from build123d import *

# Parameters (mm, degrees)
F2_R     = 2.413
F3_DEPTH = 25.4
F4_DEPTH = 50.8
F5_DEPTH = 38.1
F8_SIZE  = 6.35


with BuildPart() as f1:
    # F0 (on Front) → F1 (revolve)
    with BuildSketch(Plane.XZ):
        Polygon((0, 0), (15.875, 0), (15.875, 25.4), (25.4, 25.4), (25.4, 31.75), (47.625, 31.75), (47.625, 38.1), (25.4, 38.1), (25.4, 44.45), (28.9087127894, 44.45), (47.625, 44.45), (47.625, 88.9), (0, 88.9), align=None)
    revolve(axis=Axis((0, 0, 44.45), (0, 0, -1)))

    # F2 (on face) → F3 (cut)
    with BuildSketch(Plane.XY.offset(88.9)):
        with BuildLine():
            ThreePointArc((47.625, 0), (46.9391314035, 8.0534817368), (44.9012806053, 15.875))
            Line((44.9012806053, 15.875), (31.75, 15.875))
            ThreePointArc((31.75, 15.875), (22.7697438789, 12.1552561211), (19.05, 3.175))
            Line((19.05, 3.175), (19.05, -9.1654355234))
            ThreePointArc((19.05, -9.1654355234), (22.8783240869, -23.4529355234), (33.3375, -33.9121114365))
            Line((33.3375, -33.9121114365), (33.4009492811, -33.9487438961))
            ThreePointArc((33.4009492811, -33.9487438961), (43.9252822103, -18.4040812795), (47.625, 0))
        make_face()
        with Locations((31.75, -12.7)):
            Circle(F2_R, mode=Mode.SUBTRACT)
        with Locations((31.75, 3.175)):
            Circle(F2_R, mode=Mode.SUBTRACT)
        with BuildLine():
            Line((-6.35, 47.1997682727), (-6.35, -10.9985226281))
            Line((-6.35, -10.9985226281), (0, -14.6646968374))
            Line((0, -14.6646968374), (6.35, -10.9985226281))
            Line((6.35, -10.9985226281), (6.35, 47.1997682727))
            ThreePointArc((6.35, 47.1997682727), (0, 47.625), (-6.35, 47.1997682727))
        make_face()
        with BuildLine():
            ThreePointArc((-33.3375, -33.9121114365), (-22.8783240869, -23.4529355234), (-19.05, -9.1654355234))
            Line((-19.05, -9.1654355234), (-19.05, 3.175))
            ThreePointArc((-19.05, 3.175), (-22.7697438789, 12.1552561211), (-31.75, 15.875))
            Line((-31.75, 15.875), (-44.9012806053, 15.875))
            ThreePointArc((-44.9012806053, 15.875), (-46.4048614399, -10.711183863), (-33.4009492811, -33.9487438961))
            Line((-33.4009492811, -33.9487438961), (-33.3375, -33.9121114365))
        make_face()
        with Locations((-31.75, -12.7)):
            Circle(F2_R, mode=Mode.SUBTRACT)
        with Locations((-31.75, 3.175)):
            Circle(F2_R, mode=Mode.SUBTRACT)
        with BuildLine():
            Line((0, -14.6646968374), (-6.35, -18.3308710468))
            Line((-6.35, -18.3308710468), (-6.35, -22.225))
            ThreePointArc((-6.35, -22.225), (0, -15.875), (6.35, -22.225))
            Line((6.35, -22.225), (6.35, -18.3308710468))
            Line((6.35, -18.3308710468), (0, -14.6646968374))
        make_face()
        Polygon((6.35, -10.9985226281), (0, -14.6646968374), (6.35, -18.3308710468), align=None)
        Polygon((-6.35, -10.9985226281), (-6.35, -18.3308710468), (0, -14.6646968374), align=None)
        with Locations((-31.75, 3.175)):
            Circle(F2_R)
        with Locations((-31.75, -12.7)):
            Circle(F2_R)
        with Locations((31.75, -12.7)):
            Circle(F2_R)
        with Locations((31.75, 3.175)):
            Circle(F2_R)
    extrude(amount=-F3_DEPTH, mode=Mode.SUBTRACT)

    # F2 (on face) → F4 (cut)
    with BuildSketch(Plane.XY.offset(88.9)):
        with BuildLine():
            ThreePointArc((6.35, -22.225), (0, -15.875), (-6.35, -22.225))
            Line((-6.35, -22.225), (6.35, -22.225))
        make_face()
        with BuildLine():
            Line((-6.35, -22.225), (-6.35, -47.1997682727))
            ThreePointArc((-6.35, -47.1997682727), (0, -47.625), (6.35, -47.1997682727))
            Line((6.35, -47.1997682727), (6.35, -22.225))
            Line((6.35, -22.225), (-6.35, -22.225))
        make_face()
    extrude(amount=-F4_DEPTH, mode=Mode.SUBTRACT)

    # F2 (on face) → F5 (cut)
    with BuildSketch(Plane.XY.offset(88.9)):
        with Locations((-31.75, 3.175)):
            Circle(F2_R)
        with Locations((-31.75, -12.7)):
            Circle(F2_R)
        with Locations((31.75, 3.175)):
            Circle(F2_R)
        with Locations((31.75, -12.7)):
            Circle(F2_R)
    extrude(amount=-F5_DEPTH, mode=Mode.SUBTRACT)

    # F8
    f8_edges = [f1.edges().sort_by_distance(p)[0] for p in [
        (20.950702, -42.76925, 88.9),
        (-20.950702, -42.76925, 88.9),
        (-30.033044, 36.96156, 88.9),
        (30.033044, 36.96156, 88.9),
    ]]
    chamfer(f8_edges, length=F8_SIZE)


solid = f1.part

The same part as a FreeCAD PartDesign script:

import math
import FreeCAD as App
import Part
import Sketcher

V = App.Vector
Q = App.Units.Quantity


def edges_at(feature, points):
    """Names of the edges that pass closest to the given points."""
    edges = feature.Shape.Edges
    near = lambda p: min(range(len(edges)), key=lambda i: edges[i].distToShape(Part.Vertex(*p))[0])
    return sorted({f"Edge{near(p) + 1}" for p in points})

doc = App.newDocument("Part")
body = doc.addObject("PartDesign::Body", "Body")

sketch1 = body.newObject("Sketcher::SketchObject", "Sketch")
sketch1.AttachmentSupport = (doc.getObject("XZ_Plane"), [""])
sketch1.MapMode = "FlatFace"
sketch1.addGeometry(Part.LineSegment(V(0, 0, 0), V(15.875, 0, 0)), False)
sketch1.addGeometry(Part.LineSegment(V(15.875, 0, 0), V(15.875, 25.4, 0)), False)
sketch1.addGeometry(Part.LineSegment(V(15.875, 25.4, 0), V(25.4, 25.4, 0)), False)
sketch1.addGeometry(Part.LineSegment(V(25.4, 25.4, 0), V(25.4, 31.75, 0)), False)
sketch1.addGeometry(Part.LineSegment(V(25.4, 31.75, 0), V(47.625, 31.75, 0)), False)
sketch1.addGeometry(Part.LineSegment(V(47.625, 31.75, 0), V(47.625, 38.1, 0)), False)
sketch1.addGeometry(Part.LineSegment(V(47.625, 38.1, 0), V(25.4, 38.1, 0)), False)
sketch1.addGeometry(Part.LineSegment(V(25.4, 38.1, 0), V(25.4, 44.45, 0)), False)
sketch1.addGeometry(Part.LineSegment(V(25.4, 44.45, 0), V(47.625, 44.45, 0)), False)
sketch1.addGeometry(Part.LineSegment(V(47.625, 44.45, 0), V(47.625, 88.9, 0)), False)
sketch1.addGeometry(Part.LineSegment(V(47.625, 88.9, 0), V(0, 88.9, 0)), False)
sketch1.addGeometry(Part.LineSegment(V(0, 88.9, 0), V(0, 0, 0)), False)
sketch1.addConstraint(Sketcher.Constraint("Coincident", 0, 2, 1, 1))
sketch1.addConstraint(Sketcher.Constraint("Coincident", 1, 2, 2, 1))
sketch1.addConstraint(Sketcher.Constraint("Coincident", 2, 2, 3, 1))
sketch1.addConstraint(Sketcher.Constraint("Coincident", 3, 2, 4, 1))
sketch1.addConstraint(Sketcher.Constraint("Coincident", 4, 2, 5, 1))
sketch1.addConstraint(Sketcher.Constraint("Coincident", 5, 2, 6, 1))
sketch1.addConstraint(Sketcher.Constraint("Coincident", 6, 2, 7, 1))
sketch1.addConstraint(Sketcher.Constraint("Coincident", 7, 2, 8, 1))
sketch1.addConstraint(Sketcher.Constraint("Coincident", 8, 2, 9, 1))
sketch1.addConstraint(Sketcher.Constraint("Coincident", 9, 2, 10, 1))
sketch1.addConstraint(Sketcher.Constraint("Coincident", 10, 2, 11, 1))
sketch1.addConstraint(Sketcher.Constraint("Coincident", 11, 2, 0, 1))
sketch1.addConstraint(Sketcher.Constraint("Horizontal", 0))
sketch1.addConstraint(Sketcher.Constraint("Vertical", 1))
sketch1.addConstraint(Sketcher.Constraint("Horizontal", 2))
sketch1.addConstraint(Sketcher.Constraint("Vertical", 3))
sketch1.addConstraint(Sketcher.Constraint("Horizontal", 4))
sketch1.addConstraint(Sketcher.Constraint("Vertical", 5))
sketch1.addConstraint(Sketcher.Constraint("Horizontal", 6))
sketch1.addConstraint(Sketcher.Constraint("Vertical", 7))
sketch1.addConstraint(Sketcher.Constraint("Horizontal", 8))
sketch1.addConstraint(Sketcher.Constraint("Vertical", 9))
sketch1.addConstraint(Sketcher.Constraint("Horizontal", 10))
sketch1.addConstraint(Sketcher.Constraint("Vertical", 11))
sketch1.addConstraint(Sketcher.Constraint("Coincident", 11, 2, -1, 1))
sketch1.addConstraint(Sketcher.Constraint("Vertical", 3, 2, 6, 2))
sketch1.addConstraint(Sketcher.Constraint("Vertical", 5, 2, 8, 2))
sketch1.addConstraint(Sketcher.Constraint("Equal", 3, 5))
sketch1.addConstraint(Sketcher.Constraint("Equal", 5, 7))
sketch1.addConstraint(Sketcher.Constraint("DistanceY", 1, 1, 1, 2, Q("1 in")))
sketch1.addConstraint(Sketcher.Constraint("DistanceY", 11, 2, 11, 1, Q("3.5 in")))
sketch1.addConstraint(Sketcher.Constraint("DistanceX", -1, 1, 2, 2, Q("1 in")))
sketch1.addConstraint(Sketcher.Constraint("DistanceY", 5, 2, 9, 2, Q("2 in")))
sketch1.addConstraint(Sketcher.Constraint("DistanceX", 0, 1, 0, 2, Q("0.625 in")))
sketch1.addConstraint(Sketcher.Constraint("DistanceX", 4, 1, 4, 2, Q("0.875 in")))
revolution = body.newObject("PartDesign::Revolution", "Revolution")
revolution.Profile = sketch1
revolution.ReferenceAxis = (sketch1, ["V_Axis"])
revolution.Angle = 360

sketch2 = body.newObject("Sketcher::SketchObject", "Sketch001")
sketch2.AttachmentSupport = (doc.getObject("XY_Plane"), [""])
sketch2.MapMode = "FlatFace"
sketch2.AttachmentOffset = App.Placement(V(0, 0, 3.5 * 25.4), App.Rotation())
sketch2.addGeometry(Part.ArcOfCircle(Part.Circle(V(0, 0, 0), V(0, 0, 1), 47.625), math.radians(0), math.radians(19.471221)), False)
sketch2.addGeometry(Part.LineSegment(V(44.901281, 15.875, 0), V(31.75, 15.875, 0)), False)
sketch2.addGeometry(Part.ArcOfCircle(Part.Circle(V(31.75, 3.175, 0), V(0, 0, 1), 12.7), math.radians(90), math.radians(180)), False)
sketch2.addGeometry(Part.LineSegment(V(19.05, 3.175, 0), V(19.05, -9.165436, 0)), False)
sketch2.addGeometry(Part.ArcOfCircle(Part.Circle(V(47.625, -9.165436, 0), V(0, 0, 1), 28.575), math.radians(180), math.radians(240)), False)
sketch2.addGeometry(Part.LineSegment(V(33.3375, -33.912111, 0), V(33.400949, -33.948744, 0)), False)
sketch2.addGeometry(Part.ArcOfCircle(Part.Circle(V(0, 0, 0), V(0, 0, 1), 47.625), math.radians(-45.46601), math.radians(0)), False)
sketch2.addGeometry(Part.LineSegment(V(-6.35, 47.199768, 0), V(-6.35, -22.225, 0)), False)
sketch2.addGeometry(Part.ArcOfCircle(Part.Circle(V(0, -22.225, 0), V(0, 0, 1), 6.35), math.radians(0), math.radians(180)), False)
sketch2.addGeometry(Part.LineSegment(V(6.35, -22.225, 0), V(6.35, 47.199768, 0)), False)
sketch2.addGeometry(Part.ArcOfCircle(Part.Circle(V(0, 0, 0), V(0, 0, 1), 47.625), math.radians(82.337744), math.radians(97.662256)), False)
sketch2.addGeometry(Part.ArcOfCircle(Part.Circle(V(-47.625, -9.165436, 0), V(0, 0, 1), 28.575), math.radians(-60), math.radians(0)), False)
sketch2.addGeometry(Part.LineSegment(V(-19.05, -9.165436, 0), V(-19.05, 3.175, 0)), False)
sketch2.addGeometry(Part.ArcOfCircle(Part.Circle(V(-31.75, 3.175, 0), V(0, 0, 1), 12.7), math.radians(0), math.radians(90)), False)
sketch2.addGeometry(Part.LineSegment(V(-31.75, 15.875, 0), V(-44.901281, 15.875, 0)), False)
sketch2.addGeometry(Part.ArcOfCircle(Part.Circle(V(0, 0, 0), V(0, 0, 1), 47.625), math.radians(160.528779), math.radians(225.46601)), False)
sketch2.addGeometry(Part.LineSegment(V(-33.400949, -33.948744, 0), V(-33.3375, -33.912111, 0)), False)
sketch2.addConstraint(Sketcher.Constraint("Coincident", 0, 2, 1, 1))
sketch2.addConstraint(Sketcher.Constraint("Tangent", 1, 2, 2, 1))
sketch2.addConstraint(Sketcher.Constraint("Tangent", 2, 2, 3, 1))
sketch2.addConstraint(Sketcher.Constraint("Tangent", 3, 2, 4, 1))
sketch2.addConstraint(Sketcher.Constraint("Tangent", 4, 2, 5, 1))
sketch2.addConstraint(Sketcher.Constraint("Coincident", 5, 2, 6, 1))
sketch2.addConstraint(Sketcher.Constraint("Tangent", 6, 2, 0, 1))
sketch2.addConstraint(Sketcher.Constraint("Tangent", 7, 2, 8, 2))
sketch2.addConstraint(Sketcher.Constraint("Tangent", 8, 1, 9, 1))
sketch2.addConstraint(Sketcher.Constraint("Coincident", 9, 2, 10, 1))
sketch2.addConstraint(Sketcher.Constraint("Coincident", 10, 2, 7, 1))
sketch2.addConstraint(Sketcher.Constraint("Tangent", 11, 2, 12, 1))
sketch2.addConstraint(Sketcher.Constraint("Tangent", 12, 2, 13, 1))
sketch2.addConstraint(Sketcher.Constraint("Tangent", 13, 2, 14, 1))
sketch2.addConstraint(Sketcher.Constraint("Coincident", 14, 2, 15, 1))
sketch2.addConstraint(Sketcher.Constraint("Coincident", 15, 2, 16, 1))
sketch2.addConstraint(Sketcher.Constraint("Tangent", 16, 2, 11, 1))
sketch2.addConstraint(Sketcher.Constraint("Horizontal", 1))
sketch2.addConstraint(Sketcher.Constraint("Vertical", 3))
sketch2.addConstraint(Sketcher.Constraint("Vertical", 7))
sketch2.addConstraint(Sketcher.Constraint("Vertical", 9))
sketch2.addConstraint(Sketcher.Constraint("Vertical", 12))
sketch2.addConstraint(Sketcher.Constraint("Horizontal", 14))
sketch2.addConstraint(Sketcher.Constraint("Coincident", 0, 3, -1, 1))
sketch2.addConstraint(Sketcher.Constraint("Coincident", 10, 3, -1, 1))
sketch2.addConstraint(Sketcher.Constraint("Coincident", 15, 3, -1, 1))
sketch2.addConstraint(Sketcher.Constraint("Equal", 0, 6))
sketch2.addConstraint(Sketcher.Constraint("Equal", 6, 10))
sketch2.addConstraint(Sketcher.Constraint("Equal", 4, 11))
sketch2.addConstraint(Sketcher.Constraint("Equal", 2, 13))
sketch2.addConstraint(Sketcher.Constraint("Equal", 10, 15))
sketch2.addConstraint(Sketcher.Constraint("Symmetric", 4, 3, 11, 3, -2))
sketch2.addConstraint(Sketcher.Constraint("PointOnObject", 8, 3, -2))
sketch2.addConstraint(Sketcher.Constraint("PointOnObject", 6, 2, -1))
sketch2.addConstraint(Sketcher.Constraint("Horizontal", 2, 3, 13, 3))
sketch2.addConstraint(Sketcher.Constraint("Horizontal", 4, 2, 16, 2))
sketch2.addConstraint(Sketcher.Constraint("Vertical", 4, 3, 6, 2))
sketch2.addConstraint(Sketcher.Constraint("Radius", 2, Q("0.5 in")))
sketch2.addConstraint(Sketcher.Constraint("Radius", 8, Q("0.25 in")))
sketch2.addConstraint(Sketcher.Constraint("Radius", 0, Q("1.875 in")))
sketch2.addConstraint(Sketcher.Constraint("Radius", 4, Q("1.125 in")))
sketch2.addConstraint(Sketcher.Constraint("DistanceY", 8, 3, 2, 3, Q("1 in")))
sketch2.addConstraint(Sketcher.Constraint("DistanceY", -1, 1, 2, 3, Q("0.125 in")))
sketch2.addConstraint(Sketcher.Constraint("DistanceX", -1, 1, 4, 2, Q("1.3125 in")))
sketch2.addConstraint(Sketcher.Constraint("DistanceY", 3, 2, 3, 1, Q("12.340436 mm")))
pocket1 = body.newObject("PartDesign::Pocket", "Pocket")
pocket1.Profile = sketch2
pocket1.Length = Q("1 in")

sketch3 = body.newObject("Sketcher::SketchObject", "Sketch002")
sketch3.AttachmentSupport = (doc.getObject("XY_Plane"), [""])
sketch3.MapMode = "FlatFace"
sketch3.AttachmentOffset = App.Placement(V(0, 0, 3.5 * 25.4), App.Rotation())
sketch3.addGeometry(Part.ArcOfCircle(Part.Circle(V(0, -22.225, 0), V(0, 0, 1), 6.35), math.radians(0), math.radians(180)), False)
sketch3.addGeometry(Part.LineSegment(V(-6.35, -22.225, 0), V(-6.35, -47.199768, 0)), False)
sketch3.addGeometry(Part.ArcOfCircle(Part.Circle(V(0, 0, 0), V(0, 0, 1), 47.625), math.radians(-97.662256), math.radians(-82.337744)), False)
sketch3.addGeometry(Part.LineSegment(V(6.35, -47.199768, 0), V(6.35, -22.225, 0)), False)
sketch3.addConstraint(Sketcher.Constraint("Tangent", 0, 2, 1, 1))
sketch3.addConstraint(Sketcher.Constraint("Coincident", 1, 2, 2, 1))
sketch3.addConstraint(Sketcher.Constraint("Coincident", 2, 2, 3, 1))
sketch3.addConstraint(Sketcher.Constraint("Tangent", 3, 2, 0, 1))
sketch3.addConstraint(Sketcher.Constraint("Vertical", 1))
sketch3.addConstraint(Sketcher.Constraint("Vertical", 3))
sketch3.addConstraint(Sketcher.Constraint("Coincident", 2, 3, -1, 1))
sketch3.addConstraint(Sketcher.Constraint("PointOnObject", 0, 3, -2))
sketch3.addConstraint(Sketcher.Constraint("Radius", 0, Q("0.25 in")))
sketch3.addConstraint(Sketcher.Constraint("Radius", 2, Q("1.875 in")))
sketch3.addConstraint(Sketcher.Constraint("DistanceY", 0, 3, -1, 1, Q("0.875 in")))
pocket2 = body.newObject("PartDesign::Pocket", "Pocket001")
pocket2.Profile = sketch3
pocket2.Length = Q("2 in")

sketch4 = body.newObject("Sketcher::SketchObject", "Sketch003")
sketch4.AttachmentSupport = (doc.getObject("XY_Plane"), [""])
sketch4.MapMode = "FlatFace"
sketch4.AttachmentOffset = App.Placement(V(0, 0, 3.5 * 25.4), App.Rotation())
sketch4.addGeometry(Part.Circle(V(-31.75, 3.175, 0), V(0, 0, 1), 2.413), False)
sketch4.addGeometry(Part.Circle(V(-31.75, -12.7, 0), V(0, 0, 1), 2.413), False)
sketch4.addGeometry(Part.Circle(V(31.75, 3.175, 0), V(0, 0, 1), 2.413), False)
sketch4.addGeometry(Part.Circle(V(31.75, -12.7, 0), V(0, 0, 1), 2.413), False)
sketch4.addConstraint(Sketcher.Constraint("Equal", 0, 1))
sketch4.addConstraint(Sketcher.Constraint("Equal", 1, 2))
sketch4.addConstraint(Sketcher.Constraint("Equal", 2, 3))
sketch4.addConstraint(Sketcher.Constraint("Symmetric", 0, 3, 2, 3, -2))
sketch4.addConstraint(Sketcher.Constraint("Symmetric", 1, 3, 3, 3, -2))
sketch4.addConstraint(Sketcher.Constraint("Vertical", 0, 3, 1, 3))
sketch4.addConstraint(Sketcher.Constraint("Diameter", 0, Q("0.19 in")))
sketch4.addConstraint(Sketcher.Constraint("DistanceY", 1, 3, -1, 1, Q("0.5 in")))
sketch4.addConstraint(Sketcher.Constraint("DistanceX", 0, 3, 2, 3, Q("2.5 in")))
sketch4.addConstraint(Sketcher.Constraint("DistanceY", -1, 1, 0, 3, Q("0.125 in")))
pocket3 = body.newObject("PartDesign::Pocket", "Pocket002")
pocket3.Profile = sketch4
pocket3.Length = Q("1.5 in")
doc.recompute()

chamfer = body.newObject("PartDesign::Chamfer", "Chamfer")
chamfer.Base = (pocket3, edges_at(pocket3, [
    (20.951, -42.769, 88.9),
    (-20.951, -42.769, 88.9),
    (-30.033, 36.962, 88.9),
    (30.033, 36.962, 88.9),
]))
chamfer.Size = Q("0.25 in")

doc.recompute()
